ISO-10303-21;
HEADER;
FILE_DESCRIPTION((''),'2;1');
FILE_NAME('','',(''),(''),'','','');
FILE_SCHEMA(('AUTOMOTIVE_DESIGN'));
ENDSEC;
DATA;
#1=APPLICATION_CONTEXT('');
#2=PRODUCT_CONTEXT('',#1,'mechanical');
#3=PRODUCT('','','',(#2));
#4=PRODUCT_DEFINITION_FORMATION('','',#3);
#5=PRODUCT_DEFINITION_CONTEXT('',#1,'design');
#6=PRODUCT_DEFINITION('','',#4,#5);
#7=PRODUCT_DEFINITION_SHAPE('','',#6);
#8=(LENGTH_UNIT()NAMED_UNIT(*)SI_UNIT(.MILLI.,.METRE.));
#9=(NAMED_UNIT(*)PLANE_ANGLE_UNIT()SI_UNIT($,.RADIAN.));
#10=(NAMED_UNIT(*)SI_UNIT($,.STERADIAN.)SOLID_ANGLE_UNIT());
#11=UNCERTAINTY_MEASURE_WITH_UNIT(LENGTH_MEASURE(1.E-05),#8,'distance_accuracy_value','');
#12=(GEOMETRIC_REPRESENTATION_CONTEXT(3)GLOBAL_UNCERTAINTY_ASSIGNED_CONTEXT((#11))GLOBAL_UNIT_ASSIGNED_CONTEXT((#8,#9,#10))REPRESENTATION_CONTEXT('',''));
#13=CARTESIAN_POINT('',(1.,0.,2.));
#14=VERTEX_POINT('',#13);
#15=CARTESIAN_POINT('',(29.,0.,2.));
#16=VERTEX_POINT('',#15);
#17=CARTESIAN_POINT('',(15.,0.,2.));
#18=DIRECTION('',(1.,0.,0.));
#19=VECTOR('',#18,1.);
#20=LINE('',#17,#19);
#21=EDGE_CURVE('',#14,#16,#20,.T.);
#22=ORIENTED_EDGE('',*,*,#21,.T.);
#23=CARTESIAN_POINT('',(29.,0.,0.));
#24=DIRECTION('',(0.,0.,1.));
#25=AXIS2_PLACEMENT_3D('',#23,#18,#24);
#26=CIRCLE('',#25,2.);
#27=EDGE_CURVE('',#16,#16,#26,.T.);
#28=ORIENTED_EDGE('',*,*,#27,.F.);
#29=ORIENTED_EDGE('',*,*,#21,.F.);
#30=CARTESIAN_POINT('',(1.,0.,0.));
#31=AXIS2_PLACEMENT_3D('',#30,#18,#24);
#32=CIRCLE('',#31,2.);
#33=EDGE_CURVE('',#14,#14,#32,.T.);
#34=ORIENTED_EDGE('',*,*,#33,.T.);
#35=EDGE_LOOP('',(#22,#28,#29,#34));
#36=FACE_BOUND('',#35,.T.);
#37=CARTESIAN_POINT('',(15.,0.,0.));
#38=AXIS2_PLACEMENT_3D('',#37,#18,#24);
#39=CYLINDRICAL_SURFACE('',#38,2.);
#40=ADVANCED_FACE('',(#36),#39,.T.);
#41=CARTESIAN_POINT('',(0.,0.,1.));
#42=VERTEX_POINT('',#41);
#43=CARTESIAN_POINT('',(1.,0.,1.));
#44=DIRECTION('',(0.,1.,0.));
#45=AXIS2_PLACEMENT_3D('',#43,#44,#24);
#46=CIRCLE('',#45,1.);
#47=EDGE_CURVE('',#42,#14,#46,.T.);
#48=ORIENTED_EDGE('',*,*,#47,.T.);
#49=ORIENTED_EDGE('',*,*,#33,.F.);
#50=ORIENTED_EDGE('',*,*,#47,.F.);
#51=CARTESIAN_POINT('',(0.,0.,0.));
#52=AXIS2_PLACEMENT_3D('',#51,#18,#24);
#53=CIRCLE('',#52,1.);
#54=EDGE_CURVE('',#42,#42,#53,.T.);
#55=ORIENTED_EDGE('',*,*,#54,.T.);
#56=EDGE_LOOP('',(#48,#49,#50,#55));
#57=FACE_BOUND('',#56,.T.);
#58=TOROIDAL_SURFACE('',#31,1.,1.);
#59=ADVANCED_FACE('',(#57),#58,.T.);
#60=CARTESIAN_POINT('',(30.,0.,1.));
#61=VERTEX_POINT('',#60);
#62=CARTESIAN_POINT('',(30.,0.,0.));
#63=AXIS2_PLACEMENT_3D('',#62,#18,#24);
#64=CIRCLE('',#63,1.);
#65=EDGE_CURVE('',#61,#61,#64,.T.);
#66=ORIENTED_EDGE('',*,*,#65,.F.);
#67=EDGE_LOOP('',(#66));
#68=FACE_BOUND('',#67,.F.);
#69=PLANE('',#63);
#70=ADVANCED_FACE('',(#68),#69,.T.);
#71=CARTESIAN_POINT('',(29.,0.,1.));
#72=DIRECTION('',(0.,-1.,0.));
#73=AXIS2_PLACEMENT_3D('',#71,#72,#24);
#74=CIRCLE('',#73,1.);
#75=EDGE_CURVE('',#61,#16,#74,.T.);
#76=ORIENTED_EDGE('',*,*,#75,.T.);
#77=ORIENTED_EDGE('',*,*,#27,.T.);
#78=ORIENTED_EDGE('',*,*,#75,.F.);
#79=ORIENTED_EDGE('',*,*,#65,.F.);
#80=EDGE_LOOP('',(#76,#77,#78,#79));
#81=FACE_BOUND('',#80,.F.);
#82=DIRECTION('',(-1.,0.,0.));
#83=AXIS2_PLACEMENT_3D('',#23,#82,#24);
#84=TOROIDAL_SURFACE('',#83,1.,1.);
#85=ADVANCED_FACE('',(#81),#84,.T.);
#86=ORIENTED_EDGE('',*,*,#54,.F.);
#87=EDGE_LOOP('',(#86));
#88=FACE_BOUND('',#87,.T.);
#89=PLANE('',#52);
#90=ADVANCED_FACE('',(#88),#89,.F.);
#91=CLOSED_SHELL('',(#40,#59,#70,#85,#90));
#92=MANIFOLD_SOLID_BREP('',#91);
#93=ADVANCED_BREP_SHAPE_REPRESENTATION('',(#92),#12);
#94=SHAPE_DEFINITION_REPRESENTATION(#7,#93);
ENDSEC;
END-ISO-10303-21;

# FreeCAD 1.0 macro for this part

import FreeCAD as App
import Part
import Sketcher

V = App.Vector
Q = App.Units.Quantity


def edges_at(feature, points):
    """Names of the edges that pass closest to the given points."""
    edges = feature.Shape.Edges
    near = lambda p: min(range(len(edges)), key=lambda i: edges[i].distToShape(Part.Vertex(*p))[0])
    return sorted({f"Edge{near(p) + 1}" for p in points})


def add_polygon(sketch, points):
    """Adds a closed chain of lines whose ends are joined by coincident constraints."""
    first, n = sketch.GeometryCount, len(points)
    for a, b in zip(points, points[1:] + points[:1]):
        sketch.addGeometry(Part.LineSegment(App.Vector(*a, 0), App.Vector(*b, 0)), False)
    for i in range(n):
        sketch.addConstraint(Sketcher.Constraint("Coincident", first + i, 2, first + (i + 1) % n, 1))

doc = App.newDocument("Part")
params = doc.addObject("Spreadsheet::Sheet", "Params")
for row, (alias, value) in enumerate([
    ("sketch1_width", "30 mm"),
    ("sketch1_height", "2 mm"),
    ("revolution_angle", "360 deg"),
    ("fillet_radius", "1 mm"),
], start=1):
    params.set(f"A{row}", alias)
    params.set(f"B{row}", "=" + value)
    params.setAlias(f"B{row}", alias)

body = doc.addObject("PartDesign::Body", "Body")

# Sketch on XZ plane
sketch1 = doc.addObject("Sketcher::SketchObject", "Sketch")
body.addObject(sketch1)
sketch1.AttachmentSupport = (doc.XZ_Plane, [""])
sketch1.MapMode = "FlatFace"
add_polygon(sketch1, [(0, 2), (0, 0), (30, 0), (30, 2)])  # lines 0-3
sketch1.addConstraint([
    Sketcher.Constraint("Vertical", 0),
    Sketcher.Constraint("Horizontal", 1),
    Sketcher.Constraint("Vertical", 2),
    Sketcher.Constraint("Horizontal", 3),
    Sketcher.Constraint("Coincident", 0, 2, -1, 1),
    Sketcher.Constraint("DistanceX", 1, 1, 1, 2, Q("30 mm")),
    Sketcher.Constraint("DistanceY", 0, 2, 0, 1, Q("2 mm")),
])
sketch1.setExpression("Constraints[9]", "Params.sketch1_width")
sketch1.setExpression("Constraints[10]", "Params.sketch1_height")
revolution = doc.addObject("PartDesign::Revolution", "Revolution")
body.addObject(revolution)
revolution.Profile = sketch1
revolution.ReferenceAxis = (sketch1, ["H_Axis"])
revolution.setExpression("Angle", "Params.revolution_angle")
doc.recompute()

fillet = doc.addObject("PartDesign::Fillet", "Fillet")
body.addObject(fillet)
fillet.Base = (revolution, edges_at(revolution, [(30, 0, -2), (0, 0, -2)]))
fillet.setExpression("Radius", "Params.fillet_radius")

doc.recompute()
